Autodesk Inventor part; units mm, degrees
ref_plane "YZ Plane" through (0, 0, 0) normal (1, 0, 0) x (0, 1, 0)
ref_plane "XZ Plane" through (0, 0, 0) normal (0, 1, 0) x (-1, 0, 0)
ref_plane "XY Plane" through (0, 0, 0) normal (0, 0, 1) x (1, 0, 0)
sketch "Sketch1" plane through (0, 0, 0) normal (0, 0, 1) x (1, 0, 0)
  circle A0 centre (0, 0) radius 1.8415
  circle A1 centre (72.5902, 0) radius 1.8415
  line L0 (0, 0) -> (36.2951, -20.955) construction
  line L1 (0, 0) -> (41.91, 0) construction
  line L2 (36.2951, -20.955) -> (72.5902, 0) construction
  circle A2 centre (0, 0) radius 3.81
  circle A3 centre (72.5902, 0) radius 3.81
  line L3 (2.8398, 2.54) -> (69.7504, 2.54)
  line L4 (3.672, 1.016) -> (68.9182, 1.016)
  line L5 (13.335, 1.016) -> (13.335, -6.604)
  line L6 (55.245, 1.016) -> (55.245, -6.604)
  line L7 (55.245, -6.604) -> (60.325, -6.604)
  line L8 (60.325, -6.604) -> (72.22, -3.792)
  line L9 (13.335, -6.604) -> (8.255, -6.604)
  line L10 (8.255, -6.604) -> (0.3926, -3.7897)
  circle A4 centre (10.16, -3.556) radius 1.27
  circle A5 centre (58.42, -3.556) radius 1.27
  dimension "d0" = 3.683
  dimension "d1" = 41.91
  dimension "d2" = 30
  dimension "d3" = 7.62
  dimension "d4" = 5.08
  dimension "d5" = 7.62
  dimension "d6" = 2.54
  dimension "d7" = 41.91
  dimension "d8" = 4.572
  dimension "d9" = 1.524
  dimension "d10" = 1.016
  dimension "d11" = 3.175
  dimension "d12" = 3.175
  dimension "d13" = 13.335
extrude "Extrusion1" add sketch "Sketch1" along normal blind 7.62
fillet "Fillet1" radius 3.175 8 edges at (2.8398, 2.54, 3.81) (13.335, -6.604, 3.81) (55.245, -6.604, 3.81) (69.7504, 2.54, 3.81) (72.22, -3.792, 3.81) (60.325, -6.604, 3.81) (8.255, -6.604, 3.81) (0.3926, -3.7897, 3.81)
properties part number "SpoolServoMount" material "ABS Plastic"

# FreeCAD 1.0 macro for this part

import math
import FreeCAD as App
import Part
import Sketcher
from FreeCAD import Vector
Q = App.Units.Quantity


def edges_at(feature, points):
    """Names of the edges that pass closest to the given points."""
    edges = feature.Shape.Edges
    near = lambda p: min(range(len(edges)), key=lambda i: edges[i].distToShape(Part.Vertex(*p))[0])
    return sorted({f"Edge{near(p) + 1}" for p in points})

doc = App.newDocument("Part")
body = doc.addObject("PartDesign::Body", "Body")

# Sketch on XY plane
sketch1 = doc.addObject("Sketcher::SketchObject", "Sketch")
body.addObject(sketch1)
sketch1.AttachmentSupport = (doc.XY_Plane, [""])
sketch1.MapMode = "FlatFace"
sketch1.addGeometry([
    Part.ArcOfCircle(Part.Circle(Vector(0, 0, 0), Vector(0, 0, 1), 3.8), math.radians(42), math.radians(276)),  # 0
    Part.LineSegment(Vector(0.4, -3.8, 0), Vector(8.3, -6.6, 0)),  # 1
    Part.LineSegment(Vector(8.3, -6.6, 0), Vector(13.3, -6.6, 0)),  # 2
    Part.LineSegment(Vector(13.3, -6.6, 0), Vector(13.3, 1, 0)),  # 3
    Part.LineSegment(Vector(13.3, 1, 0), Vector(55.2, 1, 0)),  # 4
    Part.LineSegment(Vector(55.2, 1, 0), Vector(55.2, -6.6, 0)),  # 5
    Part.LineSegment(Vector(55.2, -6.6, 0), Vector(60.3, -6.6, 0)),  # 6
    Part.LineSegment(Vector(60.3, -6.6, 0), Vector(72.2, -3.8, 0)),  # 7
    Part.ArcOfCircle(Part.Circle(Vector(72.6, 0, 0), Vector(0, 0, 1), 3.8), math.radians(-96), math.radians(138)),  # 8
    Part.LineSegment(Vector(69.8, 2.5, 0), Vector(2.8, 2.5, 0)),  # 9
    Part.Circle(Vector(0, 0, 0), Vector(0, 0, 1), 1.8),  # 10
    Part.Circle(Vector(10.2, -3.6, 0), Vector(0, 0, 1), 1.3),  # 11
    Part.Circle(Vector(72.6, 0, 0), Vector(0, 0, 1), 1.8),  # 12
    Part.Circle(Vector(58.4, -3.6, 0), Vector(0, 0, 1), 1.3),  # 13
], False)
sketch1.addConstraint([
    Sketcher.Constraint("Coincident", 0, 2, 1, 1),
    Sketcher.Constraint("Coincident", 1, 2, 2, 1),
    Sketcher.Constraint("Coincident", 2, 2, 3, 1),
    Sketcher.Constraint("Coincident", 3, 2, 4, 1),
    Sketcher.Constraint("Coincident", 4, 2, 5, 1),
    Sketcher.Constraint("Coincident", 5, 2, 6, 1),
    Sketcher.Constraint("Coincident", 6, 2, 7, 1),
    Sketcher.Constraint("Coincident", 7, 2, 8, 1),
    Sketcher.Constraint("Coincident", 8, 2, 9, 1),
    Sketcher.Constraint("Coincident", 9, 2, 0, 1),
    Sketcher.Constraint("Horizontal", 2),
    Sketcher.Constraint("Vertical", 3),
    Sketcher.Constraint("Horizontal", 4),
    Sketcher.Constraint("Vertical", 5),
    Sketcher.Constraint("Horizontal", 6),
    Sketcher.Constraint("Horizontal", 9),
    Sketcher.Constraint("Coincident", 0, 3, -1, 1),
    Sketcher.Constraint("Coincident", 10, 3, -1, 1),
    Sketcher.Constraint("Coincident", 12, 3, 8, 3),
    Sketcher.Constraint("Equal", 0, 8),
    Sketcher.Constraint("Equal", 10, 12),
    Sketcher.Constraint("Equal", 11, 13),
    Sketcher.Constraint("PointOnObject", 8, 3, -1),
    Sketcher.Constraint("Horizontal", 11, 3, 13, 3),
    Sketcher.Constraint("Horizontal", 2, 2, 5, 2),
    Sketcher.Constraint("Equal", 2, 6),
    Sketcher.Constraint("Diameter", 11, Q("0.1 in")),
    Sketcher.Constraint("Radius", 0, Q("0.15 in")),
    Sketcher.Constraint("Diameter", 10, Q("0.145 in")),
    Sketcher.Constraint("DistanceX", 2, 1, 2, 2, Q("0.2 in")),
    Sketcher.Constraint("DistanceY", 3, 1, 3, 2, Q("0.3 in")),
    Sketcher.Constraint("DistanceX", 4, 1, 4, 2, Q("1.65 in")),
    Sketcher.Constraint("DistanceY", -1, 1, 8, 2, Q("0.1 in")),
    Sketcher.Constraint("DistanceY", -1, 1, 3, 2, Q("0.04 in")),
    Sketcher.Constraint("DistanceY", 11, 3, 3, 2, Q("0.18 in")),
    Sketcher.Constraint("DistanceX", -1, 1, 2, 2, Q("0.525 in")),
    Sketcher.Constraint("DistanceX", 11, 3, 2, 2, Q("0.125 in")),
    Sketcher.Constraint("DistanceX", 4, 2, 13, 3, Q("0.125 in")),
    Sketcher.Constraint("Angle", 7, Q("13.3006 deg")),
    Sketcher.Constraint("DistanceX", 9, 2, 9, 1, Q("66.9106 mm")),
    Sketcher.Constraint("DistanceY", 0, 2, -1, 1, Q("0.1492 in")),
])
pad1 = doc.addObject("PartDesign::Pad", "Pad")
body.addObject(pad1)
pad1.Profile = sketch1
pad1.Length = Q("0.3 in")
doc.recompute()

fillet = doc.addObject("PartDesign::Fillet", "Fillet")
body.addObject(fillet)
fillet.Base = (pad1, edges_at(pad1, [
    (2.84, 2.54, 3.81),
    (13.335, -6.604, 3.81),
    (55.245, -6.604, 3.81),
    (69.75, 2.54, 3.81),
    (72.22, -3.792, 3.81),
    (60.325, -6.604, 3.81),
    (8.255, -6.604, 3.81),
    (0.393, -3.79, 3.81),
]))
fillet.Radius = Q("0.125 in")

doc.recompute()
